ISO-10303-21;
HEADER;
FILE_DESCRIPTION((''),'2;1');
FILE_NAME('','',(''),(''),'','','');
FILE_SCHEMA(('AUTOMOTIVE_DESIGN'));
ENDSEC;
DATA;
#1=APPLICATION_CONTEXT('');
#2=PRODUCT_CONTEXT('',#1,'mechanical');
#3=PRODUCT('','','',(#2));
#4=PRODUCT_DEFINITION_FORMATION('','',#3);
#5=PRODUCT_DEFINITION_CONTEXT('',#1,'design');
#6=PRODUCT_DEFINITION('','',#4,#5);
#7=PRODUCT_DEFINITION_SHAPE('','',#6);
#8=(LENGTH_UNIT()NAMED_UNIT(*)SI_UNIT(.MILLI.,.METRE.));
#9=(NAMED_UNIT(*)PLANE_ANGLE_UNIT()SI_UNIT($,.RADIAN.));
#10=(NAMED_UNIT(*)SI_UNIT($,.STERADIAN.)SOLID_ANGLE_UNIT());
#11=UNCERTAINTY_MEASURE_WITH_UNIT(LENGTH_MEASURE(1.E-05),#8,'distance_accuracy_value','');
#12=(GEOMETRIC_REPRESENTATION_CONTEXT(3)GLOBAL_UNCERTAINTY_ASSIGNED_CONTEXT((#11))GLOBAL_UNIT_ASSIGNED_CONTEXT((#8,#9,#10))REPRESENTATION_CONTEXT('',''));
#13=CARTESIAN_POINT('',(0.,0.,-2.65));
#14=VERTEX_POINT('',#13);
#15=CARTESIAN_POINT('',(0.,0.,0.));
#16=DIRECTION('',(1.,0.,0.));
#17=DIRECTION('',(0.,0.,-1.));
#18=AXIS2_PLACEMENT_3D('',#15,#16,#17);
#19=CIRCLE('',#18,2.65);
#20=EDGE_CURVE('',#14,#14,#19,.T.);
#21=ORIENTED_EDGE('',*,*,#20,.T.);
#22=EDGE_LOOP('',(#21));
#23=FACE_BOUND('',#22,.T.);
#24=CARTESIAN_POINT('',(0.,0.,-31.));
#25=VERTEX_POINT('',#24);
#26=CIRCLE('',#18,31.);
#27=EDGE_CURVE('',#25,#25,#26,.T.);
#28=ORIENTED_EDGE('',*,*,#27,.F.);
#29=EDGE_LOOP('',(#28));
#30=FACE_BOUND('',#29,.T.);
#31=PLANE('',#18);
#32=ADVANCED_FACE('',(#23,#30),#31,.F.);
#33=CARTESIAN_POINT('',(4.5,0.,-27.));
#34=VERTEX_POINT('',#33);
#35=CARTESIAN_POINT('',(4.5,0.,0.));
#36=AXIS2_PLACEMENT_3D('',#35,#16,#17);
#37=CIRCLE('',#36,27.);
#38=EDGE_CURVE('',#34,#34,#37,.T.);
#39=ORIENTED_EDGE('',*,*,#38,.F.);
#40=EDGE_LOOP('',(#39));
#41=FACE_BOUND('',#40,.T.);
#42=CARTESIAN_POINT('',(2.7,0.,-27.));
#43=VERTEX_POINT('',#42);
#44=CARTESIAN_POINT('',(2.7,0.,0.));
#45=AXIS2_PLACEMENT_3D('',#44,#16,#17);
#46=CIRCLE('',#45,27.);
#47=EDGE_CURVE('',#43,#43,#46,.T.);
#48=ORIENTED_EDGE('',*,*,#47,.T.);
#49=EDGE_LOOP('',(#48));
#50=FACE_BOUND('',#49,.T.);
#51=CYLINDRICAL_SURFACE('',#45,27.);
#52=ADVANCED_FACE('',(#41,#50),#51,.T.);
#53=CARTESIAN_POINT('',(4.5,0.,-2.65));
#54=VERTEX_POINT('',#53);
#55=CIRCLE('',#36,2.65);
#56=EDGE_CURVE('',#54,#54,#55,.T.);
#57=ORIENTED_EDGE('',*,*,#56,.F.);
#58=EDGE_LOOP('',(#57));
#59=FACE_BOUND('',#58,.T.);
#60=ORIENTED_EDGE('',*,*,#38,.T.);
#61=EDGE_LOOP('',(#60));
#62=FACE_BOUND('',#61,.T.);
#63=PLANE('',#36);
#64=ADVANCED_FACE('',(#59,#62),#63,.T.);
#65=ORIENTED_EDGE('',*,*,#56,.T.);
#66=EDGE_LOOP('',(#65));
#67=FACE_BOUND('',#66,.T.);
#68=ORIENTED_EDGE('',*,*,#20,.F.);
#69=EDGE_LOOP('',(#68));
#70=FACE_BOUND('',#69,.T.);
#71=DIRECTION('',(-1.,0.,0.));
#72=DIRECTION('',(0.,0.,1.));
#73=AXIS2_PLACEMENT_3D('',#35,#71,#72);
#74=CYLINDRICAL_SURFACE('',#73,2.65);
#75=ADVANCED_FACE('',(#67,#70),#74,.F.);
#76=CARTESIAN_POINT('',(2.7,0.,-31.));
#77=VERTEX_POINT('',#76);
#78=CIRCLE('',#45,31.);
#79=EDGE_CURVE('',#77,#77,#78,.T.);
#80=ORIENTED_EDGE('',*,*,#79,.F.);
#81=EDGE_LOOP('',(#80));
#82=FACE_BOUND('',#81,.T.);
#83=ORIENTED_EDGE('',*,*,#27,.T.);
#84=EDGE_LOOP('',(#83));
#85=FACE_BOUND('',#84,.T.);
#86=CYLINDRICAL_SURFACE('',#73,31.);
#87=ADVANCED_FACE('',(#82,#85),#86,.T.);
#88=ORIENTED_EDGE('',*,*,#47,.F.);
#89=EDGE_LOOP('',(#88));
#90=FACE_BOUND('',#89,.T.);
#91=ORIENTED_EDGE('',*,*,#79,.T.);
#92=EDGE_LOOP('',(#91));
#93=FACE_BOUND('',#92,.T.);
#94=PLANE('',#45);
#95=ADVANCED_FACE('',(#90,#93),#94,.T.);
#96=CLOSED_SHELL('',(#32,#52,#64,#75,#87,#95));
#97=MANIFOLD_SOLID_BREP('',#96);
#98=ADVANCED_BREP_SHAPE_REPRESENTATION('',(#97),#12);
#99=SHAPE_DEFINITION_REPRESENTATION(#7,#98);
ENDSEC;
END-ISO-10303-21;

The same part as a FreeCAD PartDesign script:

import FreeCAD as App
import Part
import Sketcher

V = App.Vector
Q = App.Units.Quantity

doc = App.newDocument("Part")
body = doc.addObject("PartDesign::Body", "Body")

sketch1 = body.newObject("Sketcher::SketchObject", "Sketch")
sketch1.AttachmentSupport = (doc.getObject("YZ_Plane"), [""])
sketch1.MapMode = "FlatFace"
sketch1.addGeometry([
    Part.Circle(V(0, 0, 0), V(0, 0, 1), 31),
    Part.Circle(V(0, 0, 0), V(0, 0, 1), 2.65),
], False)
sketch1.addConstraint([
    Sketcher.Constraint("Coincident", 0, 3, -1, 1),
    Sketcher.Constraint("Coincident", 1, 3, -1, 1),
    Sketcher.Constraint("Diameter", 0, Q("62 mm")),
    Sketcher.Constraint("Diameter", 1, Q("5.3 mm")),
])
pad1 = body.newObject("PartDesign::Pad", "Pad")
pad1.Profile = sketch1
pad1.Length = 4.5

sketch2 = body.newObject("Sketcher::SketchObject", "Sketch001")
sketch2.AttachmentSupport = (doc.getObject("YZ_Plane"), [""])
sketch2.MapMode = "FlatFace"
sketch2.AttachmentOffset = App.Placement(V(0, 0, 4.5), App.Rotation())
sketch2.addGeometry([
    Part.Circle(V(0, 0, 0), V(0, 0, 1), 50),
    Part.Circle(V(0, 0, 0), V(0, 0, 1), 27),
], False)
sketch2.addConstraint([
    Sketcher.Constraint("Coincident", 0, 3, -1, 1),
    Sketcher.Constraint("Coincident", 1, 3, -1, 1),
    Sketcher.Constraint("Diameter", 0, Q("100 mm")),
    Sketcher.Constraint("Diameter", 1, Q("54 mm")),
])
pocket1 = body.newObject("PartDesign::Pocket", "Pocket")
pocket1.Profile = sketch2
pocket1.Length = 1.8

doc.recompute()
